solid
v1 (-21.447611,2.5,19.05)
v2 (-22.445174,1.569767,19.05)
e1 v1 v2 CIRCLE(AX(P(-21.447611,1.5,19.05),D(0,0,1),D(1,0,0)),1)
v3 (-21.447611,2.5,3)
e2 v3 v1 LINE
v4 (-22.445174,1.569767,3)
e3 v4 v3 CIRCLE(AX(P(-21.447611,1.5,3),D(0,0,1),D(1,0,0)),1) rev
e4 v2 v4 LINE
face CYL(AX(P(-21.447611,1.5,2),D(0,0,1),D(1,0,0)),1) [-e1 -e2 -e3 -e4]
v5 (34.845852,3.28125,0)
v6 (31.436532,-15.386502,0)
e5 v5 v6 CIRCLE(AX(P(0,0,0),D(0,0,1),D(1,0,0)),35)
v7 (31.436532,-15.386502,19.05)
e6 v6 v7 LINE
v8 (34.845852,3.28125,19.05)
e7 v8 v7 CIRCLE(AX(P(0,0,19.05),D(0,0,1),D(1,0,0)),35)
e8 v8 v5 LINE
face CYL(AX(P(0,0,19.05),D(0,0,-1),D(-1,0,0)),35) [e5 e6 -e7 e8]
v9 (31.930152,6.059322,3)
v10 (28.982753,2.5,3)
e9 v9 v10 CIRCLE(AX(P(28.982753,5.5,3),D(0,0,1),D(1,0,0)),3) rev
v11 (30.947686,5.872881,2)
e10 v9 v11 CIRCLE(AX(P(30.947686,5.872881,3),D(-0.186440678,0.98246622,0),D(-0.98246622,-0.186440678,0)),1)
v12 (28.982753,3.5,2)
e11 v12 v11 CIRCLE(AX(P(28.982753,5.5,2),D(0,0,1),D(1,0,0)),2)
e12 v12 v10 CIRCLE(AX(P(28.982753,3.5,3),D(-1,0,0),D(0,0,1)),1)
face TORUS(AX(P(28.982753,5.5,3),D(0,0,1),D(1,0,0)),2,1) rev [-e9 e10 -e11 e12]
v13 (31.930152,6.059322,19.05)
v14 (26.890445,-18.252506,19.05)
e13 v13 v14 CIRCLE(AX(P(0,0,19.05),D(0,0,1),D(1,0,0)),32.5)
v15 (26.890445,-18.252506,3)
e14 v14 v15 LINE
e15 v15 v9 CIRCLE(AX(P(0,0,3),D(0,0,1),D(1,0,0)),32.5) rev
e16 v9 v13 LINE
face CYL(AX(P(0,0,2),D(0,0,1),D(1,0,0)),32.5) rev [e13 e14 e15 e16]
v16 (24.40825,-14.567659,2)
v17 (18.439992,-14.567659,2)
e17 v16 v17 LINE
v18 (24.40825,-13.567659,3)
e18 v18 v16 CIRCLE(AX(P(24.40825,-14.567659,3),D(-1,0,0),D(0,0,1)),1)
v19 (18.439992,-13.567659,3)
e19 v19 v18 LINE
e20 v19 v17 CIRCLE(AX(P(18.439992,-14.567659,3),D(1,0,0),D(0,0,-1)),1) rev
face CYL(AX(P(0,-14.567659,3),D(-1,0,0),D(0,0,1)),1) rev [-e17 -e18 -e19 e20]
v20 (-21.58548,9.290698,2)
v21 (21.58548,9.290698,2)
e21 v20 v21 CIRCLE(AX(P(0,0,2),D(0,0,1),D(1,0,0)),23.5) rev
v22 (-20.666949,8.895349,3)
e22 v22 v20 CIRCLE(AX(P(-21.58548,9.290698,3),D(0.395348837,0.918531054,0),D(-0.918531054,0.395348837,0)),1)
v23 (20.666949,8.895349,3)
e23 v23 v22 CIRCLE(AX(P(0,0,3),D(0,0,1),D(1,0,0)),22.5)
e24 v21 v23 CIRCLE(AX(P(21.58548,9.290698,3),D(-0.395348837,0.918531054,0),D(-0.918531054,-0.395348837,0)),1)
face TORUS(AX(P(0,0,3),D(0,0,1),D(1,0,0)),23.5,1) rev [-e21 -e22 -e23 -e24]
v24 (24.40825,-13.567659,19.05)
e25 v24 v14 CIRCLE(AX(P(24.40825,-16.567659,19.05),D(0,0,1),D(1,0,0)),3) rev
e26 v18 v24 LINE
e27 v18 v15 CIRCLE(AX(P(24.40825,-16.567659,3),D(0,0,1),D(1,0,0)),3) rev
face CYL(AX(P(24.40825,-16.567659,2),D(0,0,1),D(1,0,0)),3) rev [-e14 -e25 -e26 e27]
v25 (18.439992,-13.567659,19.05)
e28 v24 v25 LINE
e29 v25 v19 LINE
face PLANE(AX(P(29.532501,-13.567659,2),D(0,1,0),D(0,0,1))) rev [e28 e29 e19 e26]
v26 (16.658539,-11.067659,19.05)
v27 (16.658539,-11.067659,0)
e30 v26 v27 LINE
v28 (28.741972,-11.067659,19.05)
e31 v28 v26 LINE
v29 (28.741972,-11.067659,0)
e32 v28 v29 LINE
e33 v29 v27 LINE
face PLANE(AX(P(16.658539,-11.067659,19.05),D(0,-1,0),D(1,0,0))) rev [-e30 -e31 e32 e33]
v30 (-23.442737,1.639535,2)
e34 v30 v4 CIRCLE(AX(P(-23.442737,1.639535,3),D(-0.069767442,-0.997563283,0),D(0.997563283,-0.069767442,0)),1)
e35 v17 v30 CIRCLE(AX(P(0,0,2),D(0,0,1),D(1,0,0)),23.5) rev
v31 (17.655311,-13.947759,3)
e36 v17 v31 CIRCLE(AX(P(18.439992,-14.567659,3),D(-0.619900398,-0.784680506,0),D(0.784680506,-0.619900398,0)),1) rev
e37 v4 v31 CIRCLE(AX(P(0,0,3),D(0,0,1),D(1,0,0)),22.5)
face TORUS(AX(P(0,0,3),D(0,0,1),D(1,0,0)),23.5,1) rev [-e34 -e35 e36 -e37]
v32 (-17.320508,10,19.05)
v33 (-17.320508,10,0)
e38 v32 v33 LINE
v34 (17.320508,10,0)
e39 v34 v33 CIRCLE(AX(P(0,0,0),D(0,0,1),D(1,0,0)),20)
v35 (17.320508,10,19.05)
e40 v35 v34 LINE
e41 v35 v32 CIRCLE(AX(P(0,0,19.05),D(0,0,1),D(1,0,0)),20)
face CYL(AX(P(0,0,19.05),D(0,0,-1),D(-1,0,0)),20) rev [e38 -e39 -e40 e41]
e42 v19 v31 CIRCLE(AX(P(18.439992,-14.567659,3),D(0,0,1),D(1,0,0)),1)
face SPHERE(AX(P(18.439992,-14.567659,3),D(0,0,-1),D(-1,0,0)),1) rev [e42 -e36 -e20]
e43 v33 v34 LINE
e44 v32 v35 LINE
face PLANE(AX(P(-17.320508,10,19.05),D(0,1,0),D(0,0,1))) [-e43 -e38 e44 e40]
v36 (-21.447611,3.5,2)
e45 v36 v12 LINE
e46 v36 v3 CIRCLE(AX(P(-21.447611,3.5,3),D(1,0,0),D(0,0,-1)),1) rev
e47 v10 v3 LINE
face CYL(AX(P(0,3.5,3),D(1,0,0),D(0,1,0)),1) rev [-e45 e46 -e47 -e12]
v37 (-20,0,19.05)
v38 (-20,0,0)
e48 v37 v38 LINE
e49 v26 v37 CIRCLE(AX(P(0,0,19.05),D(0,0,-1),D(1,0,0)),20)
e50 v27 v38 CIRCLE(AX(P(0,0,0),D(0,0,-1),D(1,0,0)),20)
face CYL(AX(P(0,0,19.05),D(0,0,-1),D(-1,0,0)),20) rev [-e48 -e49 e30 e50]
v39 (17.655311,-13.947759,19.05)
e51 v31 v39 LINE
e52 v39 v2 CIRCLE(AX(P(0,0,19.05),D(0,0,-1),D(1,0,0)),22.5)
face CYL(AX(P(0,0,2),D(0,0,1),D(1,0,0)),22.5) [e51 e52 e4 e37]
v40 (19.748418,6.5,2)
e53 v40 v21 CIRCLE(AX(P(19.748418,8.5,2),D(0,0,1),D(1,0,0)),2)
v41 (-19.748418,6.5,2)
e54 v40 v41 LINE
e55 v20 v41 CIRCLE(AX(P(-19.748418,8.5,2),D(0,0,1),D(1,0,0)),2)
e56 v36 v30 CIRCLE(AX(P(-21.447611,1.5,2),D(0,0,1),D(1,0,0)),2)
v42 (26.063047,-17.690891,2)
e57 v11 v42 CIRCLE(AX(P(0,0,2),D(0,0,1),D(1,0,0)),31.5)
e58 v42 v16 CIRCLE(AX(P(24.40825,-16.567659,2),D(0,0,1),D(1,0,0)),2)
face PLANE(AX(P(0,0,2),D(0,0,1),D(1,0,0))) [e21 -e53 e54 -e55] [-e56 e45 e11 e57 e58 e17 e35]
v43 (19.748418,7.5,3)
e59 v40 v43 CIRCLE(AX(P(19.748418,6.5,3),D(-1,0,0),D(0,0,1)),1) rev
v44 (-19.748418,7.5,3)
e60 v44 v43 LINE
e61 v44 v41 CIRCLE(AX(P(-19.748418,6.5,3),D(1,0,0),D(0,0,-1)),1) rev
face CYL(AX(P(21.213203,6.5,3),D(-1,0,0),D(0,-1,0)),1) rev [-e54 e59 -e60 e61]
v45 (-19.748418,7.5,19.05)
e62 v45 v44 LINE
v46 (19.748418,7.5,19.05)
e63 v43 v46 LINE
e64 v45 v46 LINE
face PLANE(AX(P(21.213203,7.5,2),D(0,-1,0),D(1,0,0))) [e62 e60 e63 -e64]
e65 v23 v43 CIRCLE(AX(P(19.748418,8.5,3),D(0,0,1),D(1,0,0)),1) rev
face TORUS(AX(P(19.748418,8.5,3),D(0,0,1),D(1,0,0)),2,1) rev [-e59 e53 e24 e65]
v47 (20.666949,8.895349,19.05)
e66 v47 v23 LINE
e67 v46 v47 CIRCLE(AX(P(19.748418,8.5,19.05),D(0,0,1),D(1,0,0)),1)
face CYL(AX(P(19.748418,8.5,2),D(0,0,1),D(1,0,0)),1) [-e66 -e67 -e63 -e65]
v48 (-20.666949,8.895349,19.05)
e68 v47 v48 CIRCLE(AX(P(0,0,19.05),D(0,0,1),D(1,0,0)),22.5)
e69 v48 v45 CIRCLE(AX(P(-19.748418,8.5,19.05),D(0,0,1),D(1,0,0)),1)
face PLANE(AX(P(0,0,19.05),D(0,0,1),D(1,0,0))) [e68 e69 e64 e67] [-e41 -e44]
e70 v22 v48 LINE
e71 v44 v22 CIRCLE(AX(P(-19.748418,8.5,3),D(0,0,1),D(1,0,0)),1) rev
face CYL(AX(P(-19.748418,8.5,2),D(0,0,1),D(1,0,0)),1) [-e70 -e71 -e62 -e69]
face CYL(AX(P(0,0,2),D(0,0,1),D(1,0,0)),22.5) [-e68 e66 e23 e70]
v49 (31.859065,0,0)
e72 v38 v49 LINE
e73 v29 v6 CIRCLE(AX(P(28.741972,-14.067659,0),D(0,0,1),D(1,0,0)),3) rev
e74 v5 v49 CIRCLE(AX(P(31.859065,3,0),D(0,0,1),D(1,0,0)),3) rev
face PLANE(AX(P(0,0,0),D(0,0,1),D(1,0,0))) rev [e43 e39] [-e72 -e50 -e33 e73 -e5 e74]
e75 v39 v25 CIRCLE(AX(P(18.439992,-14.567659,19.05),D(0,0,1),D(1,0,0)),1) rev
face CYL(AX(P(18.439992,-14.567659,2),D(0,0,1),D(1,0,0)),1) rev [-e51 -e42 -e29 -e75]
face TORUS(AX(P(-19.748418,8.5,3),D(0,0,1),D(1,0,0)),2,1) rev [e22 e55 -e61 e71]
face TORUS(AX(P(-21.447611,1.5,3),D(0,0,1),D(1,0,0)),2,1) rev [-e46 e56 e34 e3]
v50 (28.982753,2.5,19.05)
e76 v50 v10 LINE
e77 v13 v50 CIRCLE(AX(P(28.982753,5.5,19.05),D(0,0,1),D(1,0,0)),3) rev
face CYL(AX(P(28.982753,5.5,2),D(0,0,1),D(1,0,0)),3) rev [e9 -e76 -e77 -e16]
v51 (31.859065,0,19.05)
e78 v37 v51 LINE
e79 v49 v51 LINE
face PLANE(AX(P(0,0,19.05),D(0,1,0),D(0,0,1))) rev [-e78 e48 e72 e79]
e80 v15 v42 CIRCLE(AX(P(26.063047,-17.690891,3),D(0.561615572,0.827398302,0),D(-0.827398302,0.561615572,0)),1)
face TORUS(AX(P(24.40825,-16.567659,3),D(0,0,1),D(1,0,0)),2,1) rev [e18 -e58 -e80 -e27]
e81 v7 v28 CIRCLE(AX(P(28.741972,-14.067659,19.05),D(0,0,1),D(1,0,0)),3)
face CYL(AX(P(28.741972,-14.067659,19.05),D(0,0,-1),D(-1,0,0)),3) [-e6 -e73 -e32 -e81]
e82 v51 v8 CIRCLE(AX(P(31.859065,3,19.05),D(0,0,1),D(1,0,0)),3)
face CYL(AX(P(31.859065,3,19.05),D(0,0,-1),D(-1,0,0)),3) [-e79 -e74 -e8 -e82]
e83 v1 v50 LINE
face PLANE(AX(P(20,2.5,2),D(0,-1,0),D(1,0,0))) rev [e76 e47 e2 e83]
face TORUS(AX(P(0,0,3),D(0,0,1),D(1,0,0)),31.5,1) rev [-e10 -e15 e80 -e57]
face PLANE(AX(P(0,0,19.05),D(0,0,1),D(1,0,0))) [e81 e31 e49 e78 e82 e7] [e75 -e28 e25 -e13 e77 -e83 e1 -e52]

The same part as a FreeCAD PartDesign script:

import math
import FreeCAD as App
import Part
import Sketcher
Q = App.Units.Quantity


def edges_at(feature, points):
    """Names of the edges that pass closest to the given points."""
    edges = feature.Shape.Edges
    near = lambda p: min(range(len(edges)), key=lambda i: edges[i].distToShape(Part.Vertex(*p))[0])
    return sorted({f"Edge{near(p) + 1}" for p in points})

doc = App.newDocument("Part")
body = doc.addObject("PartDesign::Body", "Body")

# Sketch on XY plane
sketch1 = doc.addObject("Sketcher::SketchObject", "Sketch")
body.addObject(sketch1)
sketch1.AttachmentSupport = (doc.XY_Plane, [""])
sketch1.MapMode = "FlatFace"
sketch1.addGeometry(Part.ArcOfCircle(Part.Circle(App.Vector(0, 0, 0), App.Vector(0, 0, 1), 35), math.radians(0), math.radians(342)), False)
sketch1.addGeometry(Part.LineSegment(App.Vector(33, -11, 0), App.Vector(17, -11, 0)), False)
sketch1.addGeometry(Part.ArcOfCircle(Part.Circle(App.Vector(0, 0, 0), App.Vector(0, 0, 1), 20), math.radians(180), math.radians(326)), False)
sketch1.addGeometry(Part.LineSegment(App.Vector(-20, 0, 0), App.Vector(35, 0, 0)), False)
sketch1.addGeometry(Part.LineSegment(App.Vector(17, 10, 0), App.Vector(-17, 10, 0)), False)
sketch1.addGeometry(Part.ArcOfCircle(Part.Circle(App.Vector(0, 0, 0), App.Vector(0, 0, 1), 20), math.radians(30), math.radians(150)), False)
sketch1.addConstraint(Sketcher.Constraint("Coincident", 0, 2, 1, 1))
sketch1.addConstraint(Sketcher.Constraint("Coincident", 1, 2, 2, 2))
sketch1.addConstraint(Sketcher.Constraint("Coincident", 2, 1, 3, 1))
sketch1.addConstraint(Sketcher.Constraint("Coincident", 3, 2, 0, 1))
sketch1.addConstraint(Sketcher.Constraint("Coincident", 4, 1, 5, 1))
sketch1.addConstraint(Sketcher.Constraint("Coincident", 5, 2, 4, 2))
sketch1.addConstraint(Sketcher.Constraint("Horizontal", 1))
sketch1.addConstraint(Sketcher.Constraint("Horizontal", 3))
sketch1.addConstraint(Sketcher.Constraint("Horizontal", 4))
sketch1.addConstraint(Sketcher.Constraint("Coincident", 0, 3, -1, 1))
sketch1.addConstraint(Sketcher.Constraint("Coincident", 2, 3, -1, 1))
sketch1.addConstraint(Sketcher.Constraint("Coincident", 5, 3, -1, 1))
sketch1.addConstraint(Sketcher.Constraint("Equal", 2, 5))
sketch1.addConstraint(Sketcher.Constraint("PointOnObject", 2, 1, -1))
sketch1.addConstraint(Sketcher.Constraint("Radius", 0, Q("35 mm")))
sketch1.addConstraint(Sketcher.Constraint("Radius", 2, Q("20 mm")))
sketch1.addConstraint(Sketcher.Constraint("DistanceY", -1, 1, 4, 1, Q("10 mm")))
sketch1.addConstraint(Sketcher.Constraint("DistanceX", 1, 2, 1, 1, Q("16.545481 mm")))
pad1 = doc.addObject("PartDesign::Pad", "Pad")
body.addObject(pad1)
pad1.Profile = sketch1
pad1.Length = 19.05

# Sketch on XY plane
sketch2 = doc.addObject("Sketcher::SketchObject", "Sketch001")
body.addObject(sketch2)
sketch2.AttachmentSupport = (doc.XY_Plane, [""])
sketch2.MapMode = "FlatFace"
sketch2.AttachmentOffset = App.Placement(App.Vector(0, 0, 19.05), App.Rotation())
sketch2.addGeometry(Part.LineSegment(App.Vector(30, -14, 0), App.Vector(18, -14, 0)), False)
sketch2.addGeometry(Part.ArcOfCircle(Part.Circle(App.Vector(0, 0, 0), App.Vector(0, 0, 1), 22), math.radians(174), math.radians(323)), False)
sketch2.addGeometry(Part.LineSegment(App.Vector(-22, 2, 0), App.Vector(32, 2, 0)), False)
sketch2.addGeometry(Part.ArcOfCircle(Part.Circle(App.Vector(0, 0, 0), App.Vector(0, 0, 1), 32), math.radians(4), math.radians(335)), False)
sketch2.addGeometry(Part.ArcOfCircle(Part.Circle(App.Vector(0, 0, 0), App.Vector(0, 0, 1), 23), math.radians(19), math.radians(161)), False)
sketch2.addGeometry(Part.LineSegment(App.Vector(21, 8, 0), App.Vector(-21, 8, 0)), False)
sketch2.addConstraint(Sketcher.Constraint("Coincident", 0, 2, 1, 2))
sketch2.addConstraint(Sketcher.Constraint("Coincident", 1, 1, 2, 1))
sketch2.addConstraint(Sketcher.Constraint("Coincident", 2, 2, 3, 1))
sketch2.addConstraint(Sketcher.Constraint("Coincident", 3, 2, 0, 1))
sketch2.addConstraint(Sketcher.Constraint("Coincident", 4, 1, 5, 1))
sketch2.addConstraint(Sketcher.Constraint("Coincident", 5, 2, 4, 2))
sketch2.addConstraint(Sketcher.Constraint("Horizontal", 0))
sketch2.addConstraint(Sketcher.Constraint("Horizontal", 2))
sketch2.addConstraint(Sketcher.Constraint("Horizontal", 5))
sketch2.addConstraint(Sketcher.Constraint("Coincident", 1, 3, -1, 1))
sketch2.addConstraint(Sketcher.Constraint("Coincident", 3, 3, -1, 1))
sketch2.addConstraint(Sketcher.Constraint("Coincident", 4, 3, -1, 1))
sketch2.addConstraint(Sketcher.Constraint("Equal", 1, 4))
sketch2.addConstraint(Sketcher.Constraint("Radius", 1, Q("22.5 mm")))
sketch2.addConstraint(Sketcher.Constraint("Radius", 3, Q("32.5 mm")))
sketch2.addConstraint(Sketcher.Constraint("DistanceY", 2, 2, 4, 1, Q("5 mm")))
sketch2.addConstraint(Sketcher.Constraint("DistanceY", -1, 1, 1, 1, Q("2.5 mm")))
sketch2.addConstraint(Sketcher.Constraint("DistanceX", -1, 1, 3, 2, Q("29.532501 mm")))
pocket1 = doc.addObject("PartDesign::Pocket", "Pocket")
body.addObject(pocket1)
pocket1.Profile = sketch2
pocket1.Length = 17.05
doc.recompute()

fillet = doc.addObject("PartDesign::Fillet", "Fillet")
body.addObject(fillet)
fillet.Base = (pocket1, edges_at(pocket1, [
    (29.533, -13.568, 10.525),
    (32.404, 2.5, 10.525),
    (33.204, -11.068, 9.525),
    (35, 0, 9.525),
]))
fillet.Radius = 3
doc.recompute()

fillet2 = doc.addObject("PartDesign::Fillet", "Fillet001")
body.addObject(fillet2)
fillet2.Base = (fillet, edges_at(fillet, [
    (3.311, 2.5, 2),
    (-8.331, -20.901, 2),
    (-22.361, 2.5, 10.525),
    (17.949, -13.568, 10.525),
    (0, 7.5, 2),
    (0, 22.5, 2),
    (21.213, 7.5, 10.525),
    (-21.213, 7.5, 10.525),
    (-31.823, 6.597, 2),
    (21.179, -13.568, 2),
    (27.059, -15.163, 2),
    (31.293, 3.587, 2),
]))
fillet2.Radius = 1

doc.recompute()
